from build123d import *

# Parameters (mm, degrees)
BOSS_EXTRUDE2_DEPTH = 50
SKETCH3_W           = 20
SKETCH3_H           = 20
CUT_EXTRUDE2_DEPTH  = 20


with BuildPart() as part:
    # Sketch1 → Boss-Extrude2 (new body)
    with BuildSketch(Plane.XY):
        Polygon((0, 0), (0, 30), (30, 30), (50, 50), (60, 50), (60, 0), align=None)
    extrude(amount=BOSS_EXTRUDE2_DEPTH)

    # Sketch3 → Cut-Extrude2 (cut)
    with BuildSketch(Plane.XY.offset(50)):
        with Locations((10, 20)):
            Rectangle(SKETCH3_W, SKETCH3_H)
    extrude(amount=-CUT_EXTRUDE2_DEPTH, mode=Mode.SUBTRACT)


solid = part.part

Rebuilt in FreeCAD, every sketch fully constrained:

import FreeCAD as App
import Part
import Sketcher
from FreeCAD import Vector
Q = App.Units.Quantity

doc = App.newDocument("Part")
params = doc.addObject("Spreadsheet::Sheet", "Params")
for row, (alias, value) in enumerate([
    ("sketch1_width", "60 mm"),
    ("sketch1_width2", "10 mm"),
    ("sketch1_width3", "30 mm"),
    ("sketch1_height", "50 mm"),
    ("pad1_length", "50 mm"),
    ("sketch2_width", "20 mm"),
    ("pocket1_length", "20 mm"),
], start=1):
    params.set(f"A{row}", alias)
    params.set(f"B{row}", "=" + value)
    params.setAlias(f"B{row}", alias)

body = doc.addObject("PartDesign::Body", "Body")

sketch1 = body.newObject("Sketcher::SketchObject", "Sketch")
sketch1.AttachmentSupport = (doc.getObject("XY_Plane"), [""])
sketch1.MapMode = "FlatFace"
sketch1.addGeometry([
    Part.LineSegment(Vector(0, 30, 0), Vector(0, 0, 0)),
    Part.LineSegment(Vector(0, 0, 0), Vector(60, 0, 0)),
    Part.LineSegment(Vector(60, 0, 0), Vector(60, 50, 0)),
    Part.LineSegment(Vector(60, 50, 0), Vector(50, 50, 0)),
    Part.LineSegment(Vector(50, 50, 0), Vector(30, 30, 0)),
    Part.LineSegment(Vector(30, 30, 0), Vector(0, 30, 0)),
], False)
sketch1.addConstraint([
    Sketcher.Constraint("Coincident", 0, 2, 1, 1),
    Sketcher.Constraint("Coincident", 1, 2, 2, 1),
    Sketcher.Constraint("Coincident", 2, 2, 3, 1),
    Sketcher.Constraint("Coincident", 3, 2, 4, 1),
    Sketcher.Constraint("Coincident", 4, 2, 5, 1),
    Sketcher.Constraint("Coincident", 5, 2, 0, 1),
    Sketcher.Constraint("Vertical", 0),
    Sketcher.Constraint("Horizontal", 1),
    Sketcher.Constraint("Vertical", 2),
    Sketcher.Constraint("Horizontal", 3),
    Sketcher.Constraint("Horizontal", 5),
    Sketcher.Constraint("Coincident", 0, 2, -1, 1),
    Sketcher.Constraint("Equal", 5, 0),
    Sketcher.Constraint("DistanceX", 1, 1, 1, 2, Q("60 mm")),
    Sketcher.Constraint("DistanceX", 3, 2, 3, 1, Q("10 mm")),
    Sketcher.Constraint("DistanceX", 5, 2, 5, 1, Q("30 mm")),
    Sketcher.Constraint("DistanceY", 2, 1, 2, 2, Q("50 mm")),
])
sketch1.setExpression("Constraints[13]", "Params.sketch1_width")
sketch1.setExpression("Constraints[14]", "Params.sketch1_width2")
sketch1.setExpression("Constraints[15]", "Params.sketch1_width3")
sketch1.setExpression("Constraints[16]", "Params.sketch1_height")
pad1 = body.newObject("PartDesign::Pad", "Pad")
pad1.Profile = sketch1
pad1.setExpression("Length", "Params.pad1_length")

sketch2 = body.newObject("Sketcher::SketchObject", "Sketch001")
sketch2.AttachmentSupport = (doc.getObject("XY_Plane"), [""])
sketch2.MapMode = "FlatFace"
sketch2.AttachmentOffset = App.Placement(Vector(0, 0, 50), App.Rotation())
sketch2.addGeometry([
    Part.LineSegment(Vector(0, 30, 0), Vector(0, 10, 0)),
    Part.LineSegment(Vector(0, 10, 0), Vector(20, 10, 0)),
    Part.LineSegment(Vector(20, 10, 0), Vector(20, 30, 0)),
    Part.LineSegment(Vector(20, 30, 0), Vector(0, 30, 0)),
], False)
sketch2.addConstraint([
    Sketcher.Constraint("Coincident", 0, 2, 1, 1),
    Sketcher.Constraint("Coincident", 1, 2, 2, 1),
    Sketcher.Constraint("Coincident", 2, 2, 3, 1),
    Sketcher.Constraint("Coincident", 3, 2, 0, 1),
    Sketcher.Constraint("Vertical", 0),
    Sketcher.Constraint("Horizontal", 1),
    Sketcher.Constraint("Vertical", 2),
    Sketcher.Constraint("Horizontal", 3),
    Sketcher.Constraint("PointOnObject", 0, 2, -2),
    Sketcher.Constraint("Equal", 3, 0),
    Sketcher.Constraint("DistanceX", 1, 1, 1, 2, Q("20 mm")),
    Sketcher.Constraint("DistanceY", -1, 1, 0, 2, Q("10 mm")),
])
sketch2.setExpression("Constraints[10]", "Params.sketch2_width")
pocket1 = body.newObject("PartDesign::Pocket", "Pocket")
pocket1.Profile = sketch2
pocket1.setExpression("Length", "Params.pocket1_length")

doc.recompute()
